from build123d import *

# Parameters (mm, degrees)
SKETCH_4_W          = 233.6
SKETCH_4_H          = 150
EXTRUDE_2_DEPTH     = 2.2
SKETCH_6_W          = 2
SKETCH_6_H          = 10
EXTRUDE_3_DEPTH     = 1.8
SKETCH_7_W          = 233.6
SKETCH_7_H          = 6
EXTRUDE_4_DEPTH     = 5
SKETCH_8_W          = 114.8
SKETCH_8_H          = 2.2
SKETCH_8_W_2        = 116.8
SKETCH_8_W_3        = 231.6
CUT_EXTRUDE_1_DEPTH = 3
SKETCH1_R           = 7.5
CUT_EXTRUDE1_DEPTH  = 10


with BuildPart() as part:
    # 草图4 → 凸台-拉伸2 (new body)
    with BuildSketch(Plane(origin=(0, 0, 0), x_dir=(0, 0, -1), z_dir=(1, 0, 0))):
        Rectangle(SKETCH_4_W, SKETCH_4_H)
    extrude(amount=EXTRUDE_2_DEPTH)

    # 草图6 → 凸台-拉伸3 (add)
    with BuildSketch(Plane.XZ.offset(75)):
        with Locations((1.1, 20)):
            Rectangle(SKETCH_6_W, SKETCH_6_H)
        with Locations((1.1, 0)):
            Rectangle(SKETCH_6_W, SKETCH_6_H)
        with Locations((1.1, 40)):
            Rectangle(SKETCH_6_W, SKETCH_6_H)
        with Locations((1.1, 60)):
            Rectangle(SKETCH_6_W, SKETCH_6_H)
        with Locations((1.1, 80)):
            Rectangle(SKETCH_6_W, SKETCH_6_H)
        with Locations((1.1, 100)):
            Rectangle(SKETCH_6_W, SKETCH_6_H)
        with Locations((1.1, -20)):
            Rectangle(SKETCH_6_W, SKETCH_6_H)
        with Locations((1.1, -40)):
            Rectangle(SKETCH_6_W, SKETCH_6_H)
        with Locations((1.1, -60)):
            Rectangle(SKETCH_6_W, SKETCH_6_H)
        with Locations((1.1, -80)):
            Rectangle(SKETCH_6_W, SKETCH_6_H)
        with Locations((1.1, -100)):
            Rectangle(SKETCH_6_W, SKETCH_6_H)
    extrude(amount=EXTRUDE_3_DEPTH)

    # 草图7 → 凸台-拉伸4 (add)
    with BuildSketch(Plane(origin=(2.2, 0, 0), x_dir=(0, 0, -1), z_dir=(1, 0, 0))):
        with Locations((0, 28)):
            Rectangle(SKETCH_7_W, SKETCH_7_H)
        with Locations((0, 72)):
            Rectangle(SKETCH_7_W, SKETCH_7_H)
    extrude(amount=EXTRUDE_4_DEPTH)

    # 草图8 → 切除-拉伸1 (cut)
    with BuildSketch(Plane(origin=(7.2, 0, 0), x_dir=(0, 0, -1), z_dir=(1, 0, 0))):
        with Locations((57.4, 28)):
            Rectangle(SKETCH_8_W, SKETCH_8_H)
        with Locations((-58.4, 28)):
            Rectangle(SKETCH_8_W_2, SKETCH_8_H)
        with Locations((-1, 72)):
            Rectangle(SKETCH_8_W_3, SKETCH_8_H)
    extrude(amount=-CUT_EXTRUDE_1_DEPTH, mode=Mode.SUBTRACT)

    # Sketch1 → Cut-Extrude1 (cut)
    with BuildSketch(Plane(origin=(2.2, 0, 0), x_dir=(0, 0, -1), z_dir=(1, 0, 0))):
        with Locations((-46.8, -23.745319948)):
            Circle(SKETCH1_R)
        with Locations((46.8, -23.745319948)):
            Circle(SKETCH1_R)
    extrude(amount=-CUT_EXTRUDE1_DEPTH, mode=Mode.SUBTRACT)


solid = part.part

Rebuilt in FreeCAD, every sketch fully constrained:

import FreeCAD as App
import Part
import Sketcher
Q = App.Units.Quantity


def add_polygon(sketch, points):
    """Adds a closed chain of lines whose ends are joined by coincident constraints."""
    first, n = sketch.GeometryCount, len(points)
    for a, b in zip(points, points[1:] + points[:1]):
        sketch.addGeometry(Part.LineSegment(App.Vector(*a, 0), App.Vector(*b, 0)), False)
    for i in range(n):
        sketch.addConstraint(Sketcher.Constraint("Coincident", first + i, 2, first + (i + 1) % n, 1))

doc = App.newDocument("Part")
params = doc.addObject("Spreadsheet::Sheet", "Params")
for row, (alias, value) in enumerate([
    ("sketch1_width", "150 mm"),
    ("sketch1_height", "233.6 mm"),
    ("pad1_length", "2.2 mm"),
    ("sketch2_width", "2 mm"),
    ("sketch2_height", "10 mm"),
    ("pad2_length", "1.8 mm"),
    ("sketch3_width", "6 mm"),
    ("sketch3_height", "233.6 mm"),
    ("pad3_length", "5 mm"),
    ("sketch4_width", "2.2 mm"),
    ("sketch4_height", "231.6 mm"),
    ("pocket1_length", "3 mm"),
    ("sketch5_diameter", "15 mm"),
    ("pocket2_length", "10 mm"),
], start=1):
    params.set(f"A{row}", alias)
    params.set(f"B{row}", "=" + value)
    params.setAlias(f"B{row}", alias)

body = doc.addObject("PartDesign::Body", "Body")

# Sketch on YZ plane
sketch1 = doc.addObject("Sketcher::SketchObject", "Sketch")
body.addObject(sketch1)
sketch1.AttachmentSupport = (doc.YZ_Plane, [""])
sketch1.MapMode = "FlatFace"
add_polygon(sketch1, [(75, 116.8), (-75, 116.8), (-75, -116.8), (75, -116.8)])  # lines 0-3
sketch1.addConstraint(Sketcher.Constraint("Horizontal", 0))
sketch1.addConstraint(Sketcher.Constraint("Vertical", 1))
sketch1.addConstraint(Sketcher.Constraint("Horizontal", 2))
sketch1.addConstraint(Sketcher.Constraint("Vertical", 3))
sketch1.addConstraint(Sketcher.Constraint("Symmetric", 0, 2, 2, 2, -1, 1))
sketch1.addConstraint(Sketcher.Constraint("DistanceX", 0, 2, 0, 1, Q("150 mm")))
sketch1.addConstraint(Sketcher.Constraint("DistanceY", 1, 2, 1, 1, Q("233.6 mm")))
sketch1.setExpression("Constraints[9]", "Params.sketch1_width")
sketch1.setExpression("Constraints[10]", "Params.sketch1_height")
pad1 = doc.addObject("PartDesign::Pad", "Pad")
body.addObject(pad1)
pad1.Profile = sketch1
pad1.setExpression("Length", "Params.pad1_length")

# Sketch on XZ plane
sketch2 = doc.addObject("Sketcher::SketchObject", "Sketch001")
body.addObject(sketch2)
sketch2.AttachmentSupport = (doc.XZ_Plane, [""])
sketch2.MapMode = "FlatFace"
sketch2.AttachmentOffset = App.Placement(App.Vector(0, 0, 75), App.Rotation())
add_polygon(sketch2, [(0.1, 25), (0.1, 15), (2.1, 15), (2.1, 25)])  # lines 0-3
add_polygon(sketch2, [(0.1, 5), (0.1, -5), (2.1, -5), (2.1, 5)])  # lines 4-7
add_polygon(sketch2, [(0.1, 45), (0.1, 35), (2.1, 35), (2.1, 45)])  # lines 8-11
add_polygon(sketch2, [(0.1, 65), (0.1, 55), (2.1, 55), (2.1, 65)])  # lines 12-15
add_polygon(sketch2, [(0.1, 85), (0.1, 75), (2.1, 75), (2.1, 85)])  # lines 16-19
add_polygon(sketch2, [(0.1, 105), (0.1, 95), (2.1, 95), (2.1, 105)])  # lines 20-23
add_polygon(sketch2, [(0.1, -15), (0.1, -25), (2.1, -25), (2.1, -15)])  # lines 24-27
add_polygon(sketch2, [(0.1, -35), (0.1, -45), (2.1, -45), (2.1, -35)])  # lines 28-31
add_polygon(sketch2, [(0.1, -55), (0.1, -65), (2.1, -65), (2.1, -55)])  # lines 32-35
add_polygon(sketch2, [(0.1, -75), (0.1, -85), (2.1, -85), (2.1, -75)])  # lines 36-39
add_polygon(sketch2, [(0.1, -95), (0.1, -105), (2.1, -105), (2.1, -95)])  # lines 40-43
sketch2.addConstraint(Sketcher.Constraint("Vertical", 0))
sketch2.addConstraint(Sketcher.Constraint("Horizontal", 1))
sketch2.addConstraint(Sketcher.Constraint("Vertical", 2))
sketch2.addConstraint(Sketcher.Constraint("Horizontal", 3))
sketch2.addConstraint(Sketcher.Constraint("Vertical", 4))
sketch2.addConstraint(Sketcher.Constraint("Horizontal", 5))
sketch2.addConstraint(Sketcher.Constraint("Vertical", 6))
sketch2.addConstraint(Sketcher.Constraint("Horizontal", 7))
sketch2.addConstraint(Sketcher.Constraint("Vertical", 8))
sketch2.addConstraint(Sketcher.Constraint("Horizontal", 9))
sketch2.addConstraint(Sketcher.Constraint("Vertical", 10))
sketch2.addConstraint(Sketcher.Constraint("Horizontal", 11))
sketch2.addConstraint(Sketcher.Constraint("Vertical", 12))
sketch2.addConstraint(Sketcher.Constraint("Horizontal", 13))
sketch2.addConstraint(Sketcher.Constraint("Vertical", 14))
sketch2.addConstraint(Sketcher.Constraint("Horizontal", 15))
sketch2.addConstraint(Sketcher.Constraint("Vertical", 16))
sketch2.addConstraint(Sketcher.Constraint("Horizontal", 17))
sketch2.addConstraint(Sketcher.Constraint("Vertical", 18))
sketch2.addConstraint(Sketcher.Constraint("Horizontal", 19))
sketch2.addConstraint(Sketcher.Constraint("Vertical", 20))
sketch2.addConstraint(Sketcher.Constraint("Horizontal", 21))
sketch2.addConstraint(Sketcher.Constraint("Vertical", 22))
sketch2.addConstraint(Sketcher.Constraint("Horizontal", 23))
sketch2.addConstraint(Sketcher.Constraint("Vertical", 24))
sketch2.addConstraint(Sketcher.Constraint("Horizontal", 25))
sketch2.addConstraint(Sketcher.Constraint("Vertical", 26))
sketch2.addConstraint(Sketcher.Constraint("Horizontal", 27))
sketch2.addConstraint(Sketcher.Constraint("Vertical", 28))
sketch2.addConstraint(Sketcher.Constraint("Horizontal", 29))
sketch2.addConstraint(Sketcher.Constraint("Vertical", 30))
sketch2.addConstraint(Sketcher.Constraint("Horizontal", 31))
sketch2.addConstraint(Sketcher.Constraint("Vertical", 32))
sketch2.addConstraint(Sketcher.Constraint("Horizontal", 33))
sketch2.addConstraint(Sketcher.Constraint("Vertical", 34))
sketch2.addConstraint(Sketcher.Constraint("Horizontal", 35))
sketch2.addConstraint(Sketcher.Constraint("Vertical", 36))
sketch2.addConstraint(Sketcher.Constraint("Horizontal", 37))
sketch2.addConstraint(Sketcher.Constraint("Vertical", 38))
sketch2.addConstraint(Sketcher.Constraint("Horizontal", 39))
sketch2.addConstraint(Sketcher.Constraint("Vertical", 40))
sketch2.addConstraint(Sketcher.Constraint("Horizontal", 41))
sketch2.addConstraint(Sketcher.Constraint("Vertical", 42))
sketch2.addConstraint(Sketcher.Constraint("Horizontal", 43))
sketch2.addConstraint(Sketcher.Constraint("Symmetric", 3, 2, 24, 2, -1))
sketch2.addConstraint(Sketcher.Constraint("Symmetric", 1, 2, 26, 2, -1))
sketch2.addConstraint(Sketcher.Constraint("Symmetric", 11, 2, 28, 2, -1))
sketch2.addConstraint(Sketcher.Constraint("Symmetric", 9, 2, 30, 2, -1))
sketch2.addConstraint(Sketcher.Constraint("Symmetric", 15, 2, 32, 2, -1))
sketch2.addConstraint(Sketcher.Constraint("Symmetric", 13, 2, 34, 2, -1))
sketch2.addConstraint(Sketcher.Constraint("Symmetric", 19, 2, 36, 2, -1))
sketch2.addConstraint(Sketcher.Constraint("Symmetric", 17, 2, 38, 2, -1))
sketch2.addConstraint(Sketcher.Constraint("Symmetric", 23, 2, 40, 2, -1))
sketch2.addConstraint(Sketcher.Constraint("Symmetric", 21, 2, 42, 2, -1))
sketch2.addConstraint(Sketcher.Constraint("Vertical", 3, 2, 4, 2))
sketch2.addConstraint(Sketcher.Constraint("Vertical", 2, 2, 5, 2))
sketch2.addConstraint(Sketcher.Constraint("Vertical", 7, 2, 8, 2))
sketch2.addConstraint(Sketcher.Constraint("Vertical", 6, 2, 9, 2))
sketch2.addConstraint(Sketcher.Constraint("Vertical", 11, 2, 12, 2))
sketch2.addConstraint(Sketcher.Constraint("Vertical", 10, 2, 13, 2))
sketch2.addConstraint(Sketcher.Constraint("Vertical", 15, 2, 16, 2))
sketch2.addConstraint(Sketcher.Constraint("Vertical", 14, 2, 17, 2))
sketch2.addConstraint(Sketcher.Constraint("Vertical", 19, 2, 20, 2))
sketch2.addConstraint(Sketcher.Constraint("Vertical", 18, 2, 21, 2))
sketch2.addConstraint(Sketcher.Constraint("Equal", 2, 4))
sketch2.addConstraint(Sketcher.Constraint("Equal", 6, 8))
sketch2.addConstraint(Sketcher.Constraint("Equal", 10, 12))
sketch2.addConstraint(Sketcher.Constraint("Equal", 14, 16))
sketch2.addConstraint(Sketcher.Constraint("Equal", 18, 20))
sketch2.addConstraint(Sketcher.Constraint("DistanceX", 1, 1, 1, 2, Q("2 mm")))
sketch2.addConstraint(Sketcher.Constraint("DistanceY", 0, 2, 0, 1, Q("10 mm")))
sketch2.addConstraint(Sketcher.Constraint("DistanceY", -1, 1, 0, 2, Q("15 mm")))
sketch2.addConstraint(Sketcher.Constraint("DistanceY", 4, 2, -1, 1, Q("5 mm")))
sketch2.addConstraint(Sketcher.Constraint("DistanceY", -1, 1, 8, 2, Q("35 mm")))
sketch2.addConstraint(Sketcher.Constraint("DistanceY", -1, 1, 12, 2, Q("55 mm")))
sketch2.addConstraint(Sketcher.Constraint("DistanceY", -1, 1, 16, 2, Q("75 mm")))
sketch2.addConstraint(Sketcher.Constraint("DistanceY", -1, 1, 20, 2, Q("95 mm")))
sketch2.addConstraint(Sketcher.Constraint("DistanceX", -1, 1, 0, 2, Q("0.1 mm")))
sketch2.setExpression("Constraints[113]", "Params.sketch2_width")
sketch2.setExpression("Constraints[114]", "Params.sketch2_height")
pad2 = doc.addObject("PartDesign::Pad", "Pad001")
body.addObject(pad2)
pad2.Profile = sketch2
pad2.setExpression("Length", "Params.pad2_length")

# Sketch on YZ plane
sketch3 = doc.addObject("Sketcher::SketchObject", "Sketch002")
body.addObject(sketch3)
sketch3.AttachmentSupport = (doc.YZ_Plane, [""])
sketch3.MapMode = "FlatFace"
sketch3.AttachmentOffset = App.Placement(App.Vector(0, 0, 2.2), App.Rotation())
add_polygon(sketch3, [(31, 116.8), (25, 116.8), (25, -116.8), (31, -116.8)])  # lines 0-3
add_polygon(sketch3, [(75, 116.8), (69, 116.8), (69, -116.8), (75, -116.8)])  # lines 4-7
sketch3.addConstraint(Sketcher.Constraint("Horizontal", 0))
sketch3.addConstraint(Sketcher.Constraint("Vertical", 1))
sketch3.addConstraint(Sketcher.Constraint("Horizontal", 2))
sketch3.addConstraint(Sketcher.Constraint("Vertical", 3))
sketch3.addConstraint(Sketcher.Constraint("Horizontal", 4))
sketch3.addConstraint(Sketcher.Constraint("Vertical", 5))
sketch3.addConstraint(Sketcher.Constraint("Horizontal", 6))
sketch3.addConstraint(Sketcher.Constraint("Vertical", 7))
sketch3.addConstraint(Sketcher.Constraint("Horizontal", 3, 2, 4, 2))
sketch3.addConstraint(Sketcher.Constraint("Horizontal", 2, 2, 5, 2))
sketch3.addConstraint(Sketcher.Constraint("Equal", 2, 4))
sketch3.addConstraint(Sketcher.Constraint("DistanceX", 0, 2, 0, 1, Q("6 mm")))
sketch3.addConstraint(Sketcher.Constraint("DistanceY", 1, 2, 1, 1, Q("233.6 mm")))
sketch3.addConstraint(Sketcher.Constraint("DistanceX", -1, 1, 0, 2, Q("25 mm")))
sketch3.addConstraint(Sketcher.Constraint("DistanceX", -1, 1, 4, 2, Q("69 mm")))
sketch3.addConstraint(Sketcher.Constraint("DistanceY", -1, 1, 0, 2, Q("116.8 mm")))
sketch3.setExpression("Constraints[19]", "Params.sketch3_width")
sketch3.setExpression("Constraints[20]", "Params.sketch3_height")
pad3 = doc.addObject("PartDesign::Pad", "Pad002")
body.addObject(pad3)
pad3.Profile = sketch3
pad3.setExpression("Length", "Params.pad3_length")

# Sketch on YZ plane
sketch4 = doc.addObject("Sketcher::SketchObject", "Sketch003")
body.addObject(sketch4)
sketch4.AttachmentSupport = (doc.YZ_Plane, [""])
sketch4.MapMode = "FlatFace"
sketch4.AttachmentOffset = App.Placement(App.Vector(0, 0, 7.2), App.Rotation())
add_polygon(sketch4, [(26.9, -114.8), (29.1, -114.8), (29.1, 116.8), (26.9, 116.8)])  # lines 0-3
add_polygon(sketch4, [(73.1, 116.8), (70.9, 116.8), (70.9, -114.8), (73.1, -114.8)])  # lines 4-7
sketch4.addConstraint(Sketcher.Constraint("Horizontal", 0))
sketch4.addConstraint(Sketcher.Constraint("Vertical", 1))
sketch4.addConstraint(Sketcher.Constraint("Horizontal", 2))
sketch4.addConstraint(Sketcher.Constraint("Vertical", 3))
sketch4.addConstraint(Sketcher.Constraint("Horizontal", 4))
sketch4.addConstraint(Sketcher.Constraint("Vertical", 5))
sketch4.addConstraint(Sketcher.Constraint("Horizontal", 6))
sketch4.addConstraint(Sketcher.Constraint("Vertical", 7))
sketch4.addConstraint(Sketcher.Constraint("Horizontal", 2, 2, 4, 2))
sketch4.addConstraint(Sketcher.Constraint("Horizontal", 3, 2, 5, 2))
sketch4.addConstraint(Sketcher.Constraint("Equal", 2, 4))
sketch4.addConstraint(Sketcher.Constraint("DistanceX", 0, 1, 0, 2, Q("2.2 mm")))
sketch4.addConstraint(Sketcher.Constraint("DistanceY", 1, 1, 1, 2, Q("231.6 mm")))
sketch4.addConstraint(Sketcher.Constraint("DistanceX", 2, 2, 4, 2, Q("44 mm")))
sketch4.addConstraint(Sketcher.Constraint("DistanceX", -1, 1, 0, 2, Q("29.1 mm")))
sketch4.addConstraint(Sketcher.Constraint("DistanceY", 0, 2, -1, 1, Q("114.8 mm")))
sketch4.setExpression("Constraints[19]", "Params.sketch4_width")
sketch4.setExpression("Constraints[20]", "Params.sketch4_height")
pocket1 = doc.addObject("PartDesign::Pocket", "Pocket")
body.addObject(pocket1)
pocket1.Profile = sketch4
pocket1.setExpression("Length", "Params.pocket1_length")

# Sketch on YZ plane
sketch5 = doc.addObject("Sketcher::SketchObject", "Sketch004")
body.addObject(sketch5)
sketch5.AttachmentSupport = (doc.YZ_Plane, [""])
sketch5.MapMode = "FlatFace"
sketch5.AttachmentOffset = App.Placement(App.Vector(0, 0, 2.2), App.Rotation())
sketch5.addGeometry(Part.Circle(App.Vector(-23.74532, 46.8, 0), App.Vector(0, 0, 1), 7.5), False)
sketch5.addGeometry(Part.Circle(App.Vector(-23.74532, -46.8, 0), App.Vector(0, 0, 1), 7.5), False)
sketch5.addConstraint(Sketcher.Constraint("Equal", 0, 1))
sketch5.addConstraint(Sketcher.Constraint("Symmetric", 0, 3, 1, 3, -1))
sketch5.addConstraint(Sketcher.Constraint("Diameter", 0, Q("15 mm")))
sketch5.addConstraint(Sketcher.Constraint("DistanceY", -1, 1, 0, 3, Q("46.8 mm")))
sketch5.addConstraint(Sketcher.Constraint("DistanceX", 0, 3, -1, 1, Q("23.74532 mm")))
sketch5.setExpression("Constraints[2]", "Params.sketch5_diameter")
pocket2 = doc.addObject("PartDesign::Pocket", "Pocket001")
body.addObject(pocket2)
pocket2.Profile = sketch5
pocket2.setExpression("Length", "Params.pocket2_length")

doc.recompute()
